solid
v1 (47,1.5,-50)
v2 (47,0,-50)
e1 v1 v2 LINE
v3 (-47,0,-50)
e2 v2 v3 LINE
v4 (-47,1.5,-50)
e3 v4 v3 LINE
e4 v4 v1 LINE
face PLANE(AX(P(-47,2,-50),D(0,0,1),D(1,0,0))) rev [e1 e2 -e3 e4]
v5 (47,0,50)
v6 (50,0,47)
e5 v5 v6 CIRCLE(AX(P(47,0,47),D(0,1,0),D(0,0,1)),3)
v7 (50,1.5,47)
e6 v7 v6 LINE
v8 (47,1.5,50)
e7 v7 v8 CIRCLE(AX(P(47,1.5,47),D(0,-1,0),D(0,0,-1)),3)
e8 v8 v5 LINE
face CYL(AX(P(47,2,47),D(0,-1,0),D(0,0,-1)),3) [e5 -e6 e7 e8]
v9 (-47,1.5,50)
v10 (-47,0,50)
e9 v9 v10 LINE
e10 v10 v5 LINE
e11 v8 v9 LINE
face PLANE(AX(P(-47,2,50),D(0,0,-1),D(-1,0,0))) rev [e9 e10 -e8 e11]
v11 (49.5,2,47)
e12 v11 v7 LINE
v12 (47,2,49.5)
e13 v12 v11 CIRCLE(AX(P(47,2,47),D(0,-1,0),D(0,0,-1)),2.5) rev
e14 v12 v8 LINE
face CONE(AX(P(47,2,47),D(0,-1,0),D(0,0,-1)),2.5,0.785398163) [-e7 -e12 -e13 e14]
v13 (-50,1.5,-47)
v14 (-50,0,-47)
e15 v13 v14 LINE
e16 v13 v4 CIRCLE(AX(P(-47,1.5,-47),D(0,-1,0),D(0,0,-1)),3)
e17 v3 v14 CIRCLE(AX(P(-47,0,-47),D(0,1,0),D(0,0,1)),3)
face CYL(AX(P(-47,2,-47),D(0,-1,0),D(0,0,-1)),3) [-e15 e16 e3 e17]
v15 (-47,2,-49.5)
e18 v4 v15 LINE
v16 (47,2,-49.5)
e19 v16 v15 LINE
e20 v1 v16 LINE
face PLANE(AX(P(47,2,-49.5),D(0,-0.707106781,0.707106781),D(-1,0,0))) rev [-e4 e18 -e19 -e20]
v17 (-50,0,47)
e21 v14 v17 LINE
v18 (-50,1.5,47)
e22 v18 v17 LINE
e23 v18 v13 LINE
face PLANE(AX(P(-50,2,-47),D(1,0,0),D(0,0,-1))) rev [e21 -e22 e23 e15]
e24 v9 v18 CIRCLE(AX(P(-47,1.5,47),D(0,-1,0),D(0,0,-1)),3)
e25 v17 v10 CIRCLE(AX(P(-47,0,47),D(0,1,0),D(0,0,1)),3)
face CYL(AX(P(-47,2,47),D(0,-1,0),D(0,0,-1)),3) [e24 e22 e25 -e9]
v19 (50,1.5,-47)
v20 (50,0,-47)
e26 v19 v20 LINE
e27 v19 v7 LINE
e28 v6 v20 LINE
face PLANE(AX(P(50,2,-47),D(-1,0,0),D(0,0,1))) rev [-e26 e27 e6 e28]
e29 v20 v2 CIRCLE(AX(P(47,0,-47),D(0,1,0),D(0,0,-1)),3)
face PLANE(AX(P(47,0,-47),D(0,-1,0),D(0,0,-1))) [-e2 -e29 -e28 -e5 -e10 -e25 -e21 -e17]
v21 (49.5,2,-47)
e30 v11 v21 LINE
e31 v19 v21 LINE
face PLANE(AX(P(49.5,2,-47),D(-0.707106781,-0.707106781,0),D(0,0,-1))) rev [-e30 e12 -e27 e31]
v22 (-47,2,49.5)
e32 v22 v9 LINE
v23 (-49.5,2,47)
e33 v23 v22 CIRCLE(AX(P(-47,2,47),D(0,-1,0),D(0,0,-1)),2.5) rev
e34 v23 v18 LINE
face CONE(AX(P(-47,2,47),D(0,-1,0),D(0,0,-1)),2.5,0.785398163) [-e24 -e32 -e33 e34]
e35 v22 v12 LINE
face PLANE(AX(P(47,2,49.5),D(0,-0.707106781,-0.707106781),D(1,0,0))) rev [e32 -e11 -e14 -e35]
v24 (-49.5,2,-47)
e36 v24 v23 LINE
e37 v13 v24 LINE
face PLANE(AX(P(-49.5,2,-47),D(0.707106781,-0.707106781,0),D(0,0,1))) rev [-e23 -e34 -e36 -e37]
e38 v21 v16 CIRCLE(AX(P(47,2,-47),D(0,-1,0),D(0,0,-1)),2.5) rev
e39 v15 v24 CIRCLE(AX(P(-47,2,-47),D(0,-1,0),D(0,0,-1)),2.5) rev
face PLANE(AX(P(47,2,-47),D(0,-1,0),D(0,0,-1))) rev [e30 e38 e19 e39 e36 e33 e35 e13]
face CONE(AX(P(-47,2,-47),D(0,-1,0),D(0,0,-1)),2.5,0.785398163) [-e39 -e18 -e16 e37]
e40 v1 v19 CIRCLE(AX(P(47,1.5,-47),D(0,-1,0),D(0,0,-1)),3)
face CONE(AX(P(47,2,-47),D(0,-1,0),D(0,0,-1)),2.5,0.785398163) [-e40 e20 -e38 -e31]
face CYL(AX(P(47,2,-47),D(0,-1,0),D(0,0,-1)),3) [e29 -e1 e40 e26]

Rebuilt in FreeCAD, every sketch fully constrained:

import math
import FreeCAD as App
import Part
import Sketcher


def edges_at(feature, points):
    """Names of the edges that pass closest to the given points."""
    edges = feature.Shape.Edges
    near = lambda p: min(range(len(edges)), key=lambda i: edges[i].distToShape(Part.Vertex(*p))[0])
    return sorted({f"Edge{near(p) + 1}" for p in points})

doc = App.newDocument("Part")
body = doc.addObject("PartDesign::Body", "Body")

# Sketch on XZ plane
sketch1 = body.newObject("Sketcher::SketchObject", "Sketch")
sketch1.AttachmentSupport = (doc.getObject("XZ_Plane"), [""])
sketch1.MapMode = "FlatFace"
sketch1.addGeometry(Part.LineSegment(App.Vector(47, -50, 0), App.Vector(-47, -50, 0)), False)
sketch1.addGeometry(Part.ArcOfCircle(Part.Circle(App.Vector(-47, -47, 0), App.Vector(0, 0, 1), 3), math.radians(180), math.radians(270)), False)
sketch1.addGeometry(Part.LineSegment(App.Vector(-50, -47, 0), App.Vector(-50, 47, 0)), False)
sketch1.addGeometry(Part.ArcOfCircle(Part.Circle(App.Vector(-47, 47, 0), App.Vector(0, 0, 1), 3), math.radians(90), math.radians(180)), False)
sketch1.addGeometry(Part.LineSegment(App.Vector(-47, 50, 0), App.Vector(47, 50, 0)), False)
sketch1.addGeometry(Part.ArcOfCircle(Part.Circle(App.Vector(47, 47, 0), App.Vector(0, 0, 1), 3), math.radians(0), math.radians(90)), False)
sketch1.addGeometry(Part.LineSegment(App.Vector(50, 47, 0), App.Vector(50, -47, 0)), False)
sketch1.addGeometry(Part.ArcOfCircle(Part.Circle(App.Vector(47, -47, 0), App.Vector(0, 0, 1), 3), math.radians(-90), math.radians(0)), False)
sketch1.addConstraint(Sketcher.Constraint("Tangent", 0, 2, 1, 2))
sketch1.addConstraint(Sketcher.Constraint("Tangent", 1, 1, 2, 1))
sketch1.addConstraint(Sketcher.Constraint("Tangent", 2, 2, 3, 2))
sketch1.addConstraint(Sketcher.Constraint("Tangent", 3, 1, 4, 1))
sketch1.addConstraint(Sketcher.Constraint("Tangent", 4, 2, 5, 2))
sketch1.addConstraint(Sketcher.Constraint("Tangent", 5, 1, 6, 1))
sketch1.addConstraint(Sketcher.Constraint("Tangent", 6, 2, 7, 2))
sketch1.addConstraint(Sketcher.Constraint("Tangent", 7, 1, 0, 1))
sketch1.addConstraint(Sketcher.Constraint("Horizontal", 0))
sketch1.addConstraint(Sketcher.Constraint("Vertical", 2))
sketch1.addConstraint(Sketcher.Constraint("Horizontal", 4))
sketch1.addConstraint(Sketcher.Constraint("Vertical", 6))
sketch1.addConstraint(Sketcher.Constraint("Equal", 1, 3))
sketch1.addConstraint(Sketcher.Constraint("Equal", 3, 5))
sketch1.addConstraint(Sketcher.Constraint("Equal", 5, 7))
sketch1.addConstraint(Sketcher.Constraint("Symmetric", 1, 3, 5, 3, -1, 1))
sketch1.addConstraint(Sketcher.Constraint("Equal", 4, 2))
sketch1.addConstraint(Sketcher.Constraint("Radius", 1, 3.0))
sketch1.addConstraint(Sketcher.Constraint("DistanceX", 0, 2, 0, 1, 94.0))
pad1 = body.newObject("PartDesign::Pad", "Pad")
pad1.Profile = sketch1
pad1.Length = 2
pad1.Reversed = True
doc.recompute()

chamfer = body.newObject("PartDesign::Chamfer", "Chamfer")
chamfer.Base = (pad1, edges_at(pad1, [
    (-49.121, 2, -49.121),
    (-50, 2, 0),
    (-49.121, 2, 49.121),
    (0, 2, 50),
    (49.121, 2, 49.121),
    (50, 2, 0),
    (49.121, 2, -49.121),
    (0, 2, -50),
]))
chamfer.Size = 0.5

doc.recompute()
